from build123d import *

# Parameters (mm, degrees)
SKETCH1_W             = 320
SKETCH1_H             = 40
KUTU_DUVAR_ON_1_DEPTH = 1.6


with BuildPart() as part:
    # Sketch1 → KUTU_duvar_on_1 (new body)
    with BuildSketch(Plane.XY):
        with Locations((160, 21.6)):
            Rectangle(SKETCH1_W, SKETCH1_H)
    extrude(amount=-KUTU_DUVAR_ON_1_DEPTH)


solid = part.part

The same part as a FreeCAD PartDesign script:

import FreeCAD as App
import Part
import Sketcher
from FreeCAD import Vector


def add_polygon(sketch, points):
    """Adds a closed chain of lines whose ends are joined by coincident constraints."""
    first, n = sketch.GeometryCount, len(points)
    for a, b in zip(points, points[1:] + points[:1]):
        sketch.addGeometry(Part.LineSegment(App.Vector(*a, 0), App.Vector(*b, 0)), False)
    for i in range(n):
        sketch.addConstraint(Sketcher.Constraint("Coincident", first + i, 2, first + (i + 1) % n, 1))

doc = App.newDocument("Part")
params = doc.addObject("Spreadsheet::Sheet", "Params")
for row, (alias, value) in enumerate([
    ("sketch1_width", "320 mm"),
    ("sketch1_height", "40 mm"),
    ("pad1_length", "1.6 mm"),
], start=1):
    params.set(f"A{row}", alias)
    params.set(f"B{row}", "=" + value)
    params.setAlias(f"B{row}", alias)

body = doc.addObject("PartDesign::Body", "Body")

sketch1 = body.newObject("Sketcher::SketchObject", "Sketch")
sketch1.AttachmentSupport = (doc.getObject("XY_Plane"), [""])
sketch1.MapMode = "FlatFace"
add_polygon(sketch1, [(0, 42), (0, 2), (320, 2), (320, 42)])
sketch1.addConstraint([
    Sketcher.Constraint("Vertical", 0),
    Sketcher.Constraint("Horizontal", 1),
    Sketcher.Constraint("Vertical", 2),
    Sketcher.Constraint("Horizontal", 3),
    Sketcher.Constraint("PointOnObject", 0, 2, -2),
    Sketcher.Constraint("DistanceX", 1, 1, 1, 2, 320.0),
    Sketcher.Constraint("DistanceY", 0, 2, 0, 1, 40.0),
    Sketcher.Constraint("DistanceY", -1, 1, 0, 2, 1.6),
])
sketch1.setExpression("Constraints[9]", "Params.sketch1_width")
sketch1.setExpression("Constraints[10]", "Params.sketch1_height")
pad1 = body.newObject("PartDesign::Pad", "Pad")
pad1.Profile = sketch1
pad1.setExpression("Length", "Params.pad1_length")
pad1.Reversed = True

doc.recompute()
